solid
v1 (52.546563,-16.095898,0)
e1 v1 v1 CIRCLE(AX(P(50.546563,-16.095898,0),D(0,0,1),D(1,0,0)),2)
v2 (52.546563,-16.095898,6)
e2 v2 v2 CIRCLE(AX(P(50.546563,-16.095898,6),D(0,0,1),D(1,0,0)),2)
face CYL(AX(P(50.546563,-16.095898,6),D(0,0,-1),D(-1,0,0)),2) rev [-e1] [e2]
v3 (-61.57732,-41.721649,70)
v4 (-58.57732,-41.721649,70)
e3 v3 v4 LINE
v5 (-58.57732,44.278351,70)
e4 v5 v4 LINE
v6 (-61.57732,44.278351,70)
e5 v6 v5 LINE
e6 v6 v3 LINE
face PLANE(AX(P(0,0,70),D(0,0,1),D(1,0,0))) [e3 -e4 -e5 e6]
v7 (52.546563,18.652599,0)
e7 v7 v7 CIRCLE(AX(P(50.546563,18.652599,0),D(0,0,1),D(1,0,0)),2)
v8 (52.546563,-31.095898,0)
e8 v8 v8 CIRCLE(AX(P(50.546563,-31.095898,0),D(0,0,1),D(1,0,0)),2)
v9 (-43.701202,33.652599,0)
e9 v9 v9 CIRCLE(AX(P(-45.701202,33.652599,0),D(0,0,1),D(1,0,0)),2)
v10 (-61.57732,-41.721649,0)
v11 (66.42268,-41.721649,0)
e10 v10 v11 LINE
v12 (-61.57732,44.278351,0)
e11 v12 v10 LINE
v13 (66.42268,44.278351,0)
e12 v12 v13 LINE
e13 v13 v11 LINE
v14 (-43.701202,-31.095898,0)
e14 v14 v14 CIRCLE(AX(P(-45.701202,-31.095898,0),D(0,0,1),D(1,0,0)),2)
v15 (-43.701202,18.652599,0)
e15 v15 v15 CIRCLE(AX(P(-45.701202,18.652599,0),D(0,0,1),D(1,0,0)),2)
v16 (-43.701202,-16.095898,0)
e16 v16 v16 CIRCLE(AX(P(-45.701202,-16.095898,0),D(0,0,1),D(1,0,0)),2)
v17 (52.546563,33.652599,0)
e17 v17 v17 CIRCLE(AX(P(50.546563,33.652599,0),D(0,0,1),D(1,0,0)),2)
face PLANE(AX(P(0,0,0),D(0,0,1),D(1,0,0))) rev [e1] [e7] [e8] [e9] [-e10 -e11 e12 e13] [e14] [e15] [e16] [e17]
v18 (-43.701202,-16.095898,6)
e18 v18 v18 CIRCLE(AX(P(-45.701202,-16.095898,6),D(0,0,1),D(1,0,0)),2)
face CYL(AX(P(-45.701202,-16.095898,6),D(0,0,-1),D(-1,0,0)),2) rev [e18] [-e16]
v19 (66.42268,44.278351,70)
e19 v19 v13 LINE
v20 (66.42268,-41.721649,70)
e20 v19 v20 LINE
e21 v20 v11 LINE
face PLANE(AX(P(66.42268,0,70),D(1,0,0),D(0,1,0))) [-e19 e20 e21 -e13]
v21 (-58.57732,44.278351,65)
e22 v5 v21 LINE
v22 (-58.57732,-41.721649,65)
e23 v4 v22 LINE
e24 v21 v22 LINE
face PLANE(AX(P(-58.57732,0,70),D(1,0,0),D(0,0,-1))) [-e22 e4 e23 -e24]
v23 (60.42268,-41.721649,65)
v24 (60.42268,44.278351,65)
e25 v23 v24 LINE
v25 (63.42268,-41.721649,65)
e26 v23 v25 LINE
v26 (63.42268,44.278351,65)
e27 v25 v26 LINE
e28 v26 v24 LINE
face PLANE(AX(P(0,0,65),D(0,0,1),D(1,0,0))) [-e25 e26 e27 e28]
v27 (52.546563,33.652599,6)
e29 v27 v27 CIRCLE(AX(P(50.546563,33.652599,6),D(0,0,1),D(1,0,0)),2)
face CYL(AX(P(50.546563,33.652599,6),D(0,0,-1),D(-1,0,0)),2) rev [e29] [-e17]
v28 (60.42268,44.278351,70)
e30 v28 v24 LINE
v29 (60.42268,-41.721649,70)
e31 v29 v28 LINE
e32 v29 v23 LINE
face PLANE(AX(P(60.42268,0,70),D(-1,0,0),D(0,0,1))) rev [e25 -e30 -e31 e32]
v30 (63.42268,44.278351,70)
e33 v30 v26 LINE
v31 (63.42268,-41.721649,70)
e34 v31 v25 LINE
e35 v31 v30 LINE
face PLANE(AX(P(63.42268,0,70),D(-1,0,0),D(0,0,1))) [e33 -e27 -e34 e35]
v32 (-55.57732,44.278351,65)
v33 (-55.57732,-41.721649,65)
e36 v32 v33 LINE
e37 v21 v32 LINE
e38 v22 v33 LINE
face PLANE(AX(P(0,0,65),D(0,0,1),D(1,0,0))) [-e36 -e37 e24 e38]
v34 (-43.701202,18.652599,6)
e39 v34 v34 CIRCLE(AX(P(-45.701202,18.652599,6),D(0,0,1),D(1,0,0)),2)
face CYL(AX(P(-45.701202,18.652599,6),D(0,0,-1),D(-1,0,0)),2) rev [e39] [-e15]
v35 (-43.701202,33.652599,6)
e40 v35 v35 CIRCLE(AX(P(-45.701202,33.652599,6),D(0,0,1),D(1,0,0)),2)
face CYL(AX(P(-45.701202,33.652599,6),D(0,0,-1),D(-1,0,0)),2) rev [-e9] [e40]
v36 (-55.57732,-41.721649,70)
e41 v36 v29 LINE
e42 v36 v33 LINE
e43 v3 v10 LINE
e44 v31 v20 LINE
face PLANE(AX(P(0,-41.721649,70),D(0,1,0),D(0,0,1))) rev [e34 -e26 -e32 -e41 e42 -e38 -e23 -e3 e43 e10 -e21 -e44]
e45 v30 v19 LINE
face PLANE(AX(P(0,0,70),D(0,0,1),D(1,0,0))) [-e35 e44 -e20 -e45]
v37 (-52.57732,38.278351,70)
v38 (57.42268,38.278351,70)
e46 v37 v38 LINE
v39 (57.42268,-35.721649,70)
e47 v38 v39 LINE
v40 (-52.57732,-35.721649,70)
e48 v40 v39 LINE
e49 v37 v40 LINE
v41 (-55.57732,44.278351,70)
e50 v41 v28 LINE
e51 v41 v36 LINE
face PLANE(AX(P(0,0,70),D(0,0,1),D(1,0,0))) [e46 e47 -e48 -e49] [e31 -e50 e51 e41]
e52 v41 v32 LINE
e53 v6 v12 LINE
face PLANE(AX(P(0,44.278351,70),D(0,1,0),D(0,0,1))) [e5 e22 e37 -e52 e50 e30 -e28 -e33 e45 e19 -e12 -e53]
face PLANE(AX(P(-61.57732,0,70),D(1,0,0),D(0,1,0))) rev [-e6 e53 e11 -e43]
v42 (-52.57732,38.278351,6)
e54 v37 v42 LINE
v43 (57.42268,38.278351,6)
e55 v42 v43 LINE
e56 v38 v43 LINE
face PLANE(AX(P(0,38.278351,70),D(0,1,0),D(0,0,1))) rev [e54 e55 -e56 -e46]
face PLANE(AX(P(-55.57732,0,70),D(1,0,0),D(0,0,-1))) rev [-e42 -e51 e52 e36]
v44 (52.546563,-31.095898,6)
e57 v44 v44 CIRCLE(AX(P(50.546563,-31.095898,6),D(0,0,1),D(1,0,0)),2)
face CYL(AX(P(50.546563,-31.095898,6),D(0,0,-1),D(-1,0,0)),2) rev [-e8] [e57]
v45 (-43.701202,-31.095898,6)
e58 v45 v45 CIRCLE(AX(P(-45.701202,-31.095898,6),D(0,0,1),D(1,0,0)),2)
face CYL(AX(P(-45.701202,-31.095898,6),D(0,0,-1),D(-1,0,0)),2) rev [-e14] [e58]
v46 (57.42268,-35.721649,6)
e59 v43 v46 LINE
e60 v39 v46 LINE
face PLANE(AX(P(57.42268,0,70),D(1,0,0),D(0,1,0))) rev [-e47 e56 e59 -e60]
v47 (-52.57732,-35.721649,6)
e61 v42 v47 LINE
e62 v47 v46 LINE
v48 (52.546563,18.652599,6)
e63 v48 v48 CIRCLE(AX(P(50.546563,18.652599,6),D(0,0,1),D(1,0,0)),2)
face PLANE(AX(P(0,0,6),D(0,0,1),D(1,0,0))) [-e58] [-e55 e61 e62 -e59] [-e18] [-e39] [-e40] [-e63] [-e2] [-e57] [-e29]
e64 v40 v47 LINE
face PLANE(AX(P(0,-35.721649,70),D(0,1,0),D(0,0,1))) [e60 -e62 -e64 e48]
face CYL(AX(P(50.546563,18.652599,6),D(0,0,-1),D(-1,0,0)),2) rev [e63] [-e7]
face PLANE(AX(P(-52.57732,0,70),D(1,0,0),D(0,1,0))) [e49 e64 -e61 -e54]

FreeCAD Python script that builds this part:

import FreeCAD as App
import Part
import Sketcher
Q = App.Units.Quantity

doc = App.newDocument("Part")
body = doc.addObject("PartDesign::Body", "Body")

# Sketch on XY plane
sketch1 = body.newObject("Sketcher::SketchObject", "Sketch")
sketch1.AttachmentSupport = (doc.getObject("XY_Plane"), [""])
sketch1.MapMode = "FlatFace"
sketch1.addGeometry(Part.LineSegment(App.Vector(60, 44, 0), App.Vector(-56, 44, 0)), False)
sketch1.addGeometry(Part.LineSegment(App.Vector(-56, 44, 0), App.Vector(-56, -42, 0)), False)
sketch1.addGeometry(Part.LineSegment(App.Vector(-56, -42, 0), App.Vector(60, -42, 0)), False)
sketch1.addGeometry(Part.LineSegment(App.Vector(60, -42, 0), App.Vector(60, 44, 0)), False)
sketch1.addGeometry(Part.LineSegment(App.Vector(57, -36, 0), App.Vector(-53, -36, 0)), False)
sketch1.addGeometry(Part.LineSegment(App.Vector(-53, -36, 0), App.Vector(-53, 38, 0)), False)
sketch1.addGeometry(Part.LineSegment(App.Vector(-53, 38, 0), App.Vector(57, 38, 0)), False)
sketch1.addGeometry(Part.LineSegment(App.Vector(57, 38, 0), App.Vector(57, -36, 0)), False)
sketch1.addConstraint(Sketcher.Constraint("Coincident", 0, 2, 1, 1))
sketch1.addConstraint(Sketcher.Constraint("Coincident", 1, 2, 2, 1))
sketch1.addConstraint(Sketcher.Constraint("Coincident", 2, 2, 3, 1))
sketch1.addConstraint(Sketcher.Constraint("Coincident", 3, 2, 0, 1))
sketch1.addConstraint(Sketcher.Constraint("Coincident", 4, 2, 5, 1))
sketch1.addConstraint(Sketcher.Constraint("Coincident", 5, 2, 6, 1))
sketch1.addConstraint(Sketcher.Constraint("Coincident", 6, 2, 7, 1))
sketch1.addConstraint(Sketcher.Constraint("Coincident", 7, 2, 4, 1))
sketch1.addConstraint(Sketcher.Constraint("Horizontal", 0))
sketch1.addConstraint(Sketcher.Constraint("Vertical", 1))
sketch1.addConstraint(Sketcher.Constraint("Horizontal", 2))
sketch1.addConstraint(Sketcher.Constraint("Vertical", 3))
sketch1.addConstraint(Sketcher.Constraint("Horizontal", 4))
sketch1.addConstraint(Sketcher.Constraint("Vertical", 5))
sketch1.addConstraint(Sketcher.Constraint("Horizontal", 6))
sketch1.addConstraint(Sketcher.Constraint("Vertical", 7))
sketch1.addConstraint(Sketcher.Constraint("DistanceX", 0, 2, 0, 1, Q("116 mm")))
sketch1.addConstraint(Sketcher.Constraint("DistanceX", 4, 2, 4, 1, Q("110 mm")))
sketch1.addConstraint(Sketcher.Constraint("DistanceY", 1, 2, 1, 1, Q("86 mm")))
sketch1.addConstraint(Sketcher.Constraint("DistanceY", 5, 1, 5, 2, Q("74 mm")))
sketch1.addConstraint(Sketcher.Constraint("DistanceX", 1, 2, 4, 2, Q("3 mm")))
sketch1.addConstraint(Sketcher.Constraint("DistanceY", 1, 2, 4, 2, Q("6 mm")))
sketch1.addConstraint(Sketcher.Constraint("DistanceX", 0, 2, -1, 1, Q("55.57732 mm")))
sketch1.addConstraint(Sketcher.Constraint("DistanceY", -1, 1, 0, 2, Q("44.278351 mm")))
pad1 = body.newObject("PartDesign::Pad", "Pad")
pad1.Profile = sketch1
pad1.Length = 70
body2 = doc.addObject("PartDesign::Body", "Body001")

# Sketch on XY plane
sketch2 = body2.newObject("Sketcher::SketchObject", "Sketch001")
sketch2.AttachmentSupport = (doc.getObject("XY_Plane001"), [""])
sketch2.MapMode = "FlatFace"
sketch2.addGeometry(Part.LineSegment(App.Vector(66.4, 44.3, 0), App.Vector(63.4, 44.3, 0)), False)
sketch2.addGeometry(Part.LineSegment(App.Vector(63.4, 44.3, 0), App.Vector(63.4, -41.7, 0)), False)
sketch2.addGeometry(Part.LineSegment(App.Vector(63.4, -41.7, 0), App.Vector(66.4, -41.7, 0)), False)
sketch2.addGeometry(Part.LineSegment(App.Vector(66.4, -41.7, 0), App.Vector(66.4, 44.3, 0)), False)
sketch2.addConstraint(Sketcher.Constraint("Coincident", 0, 2, 1, 1))
sketch2.addConstraint(Sketcher.Constraint("Coincident", 1, 2, 2, 1))
sketch2.addConstraint(Sketcher.Constraint("Coincident", 2, 2, 3, 1))
sketch2.addConstraint(Sketcher.Constraint("Coincident", 3, 2, 0, 1))
sketch2.addConstraint(Sketcher.Constraint("Horizontal", 0))
sketch2.addConstraint(Sketcher.Constraint("Vertical", 1))
sketch2.addConstraint(Sketcher.Constraint("Horizontal", 2))
sketch2.addConstraint(Sketcher.Constraint("Vertical", 3))
sketch2.addConstraint(Sketcher.Constraint("DistanceX", 0, 2, 0, 1, Q("3 mm")))
sketch2.addConstraint(Sketcher.Constraint("DistanceY", 1, 2, 1, 1, Q("86 mm")))
sketch2.addConstraint(Sketcher.Constraint("DistanceX", -1, 1, 0, 2, Q("63.42268 mm")))
sketch2.addConstraint(Sketcher.Constraint("DistanceY", -1, 1, 0, 2, Q("44.278351 mm")))
pad2 = body2.newObject("PartDesign::Pad", "Pad001")
pad2.Profile = sketch2
pad2.Length = 70
body3 = doc.addObject("PartDesign::Body", "Body002")

# Sketch on XY plane
sketch3 = body3.newObject("Sketcher::SketchObject", "Sketch002")
sketch3.AttachmentSupport = (doc.getObject("XY_Plane002"), [""])
sketch3.MapMode = "FlatFace"
sketch3.addGeometry(Part.LineSegment(App.Vector(-58.6, 44.3, 0), App.Vector(-61.6, 44.3, 0)), False)
sketch3.addGeometry(Part.LineSegment(App.Vector(-61.6, 44.3, 0), App.Vector(-61.6, -41.7, 0)), False)
sketch3.addGeometry(Part.LineSegment(App.Vector(-61.6, -41.7, 0), App.Vector(-58.6, -41.7, 0)), False)
sketch3.addGeometry(Part.LineSegment(App.Vector(-58.6, -41.7, 0), App.Vector(-58.6, 44.3, 0)), False)
sketch3.addConstraint(Sketcher.Constraint("Coincident", 0, 2, 1, 1))
sketch3.addConstraint(Sketcher.Constraint("Coincident", 1, 2, 2, 1))
sketch3.addConstraint(Sketcher.Constraint("Coincident", 2, 2, 3, 1))
sketch3.addConstraint(Sketcher.Constraint("Coincident", 3, 2, 0, 1))
sketch3.addConstraint(Sketcher.Constraint("Horizontal", 0))
sketch3.addConstraint(Sketcher.Constraint("Vertical", 1))
sketch3.addConstraint(Sketcher.Constraint("Horizontal", 2))
sketch3.addConstraint(Sketcher.Constraint("Vertical", 3))
sketch3.addConstraint(Sketcher.Constraint("DistanceX", 0, 2, 0, 1, Q("3 mm")))
sketch3.addConstraint(Sketcher.Constraint("DistanceY", 1, 2, 1, 1, Q("86 mm")))
sketch3.addConstraint(Sketcher.Constraint("DistanceX", 0, 2, -1, 1, Q("61.57732 mm")))
sketch3.addConstraint(Sketcher.Constraint("DistanceY", -1, 1, 0, 2, Q("44.278351 mm")))
pad3 = body3.newObject("PartDesign::Pad", "Pad002")
pad3.Profile = sketch3
pad3.Length = 70
body.AllowCompound = True
doc.recompute()

boolean = body.newObject("PartDesign::Boolean", "Boolean")
boolean.Type = "Fuse"
boolean.addObjects([body2])
doc.recompute()

boolean2 = body.newObject("PartDesign::Boolean", "Boolean001")
boolean2.Type = "Fuse"
boolean2.addObjects([body3])

# Sketch on XY plane
sketch4 = body.newObject("Sketcher::SketchObject", "Sketch003")
sketch4.AttachmentSupport = (doc.getObject("XY_Plane"), [""])
sketch4.MapMode = "FlatFace"
sketch4.addGeometry(Part.LineSegment(App.Vector(-58.6, 44.3, 0), App.Vector(-58.6, -41.7, 0)), False)
sketch4.addGeometry(Part.LineSegment(App.Vector(-58.6, -41.7, 0), App.Vector(-55.6, -41.7, 0)), False)
sketch4.addGeometry(Part.LineSegment(App.Vector(-55.6, -41.7, 0), App.Vector(-55.6, 44.3, 0)), False)
sketch4.addGeometry(Part.LineSegment(App.Vector(-55.6, 44.3, 0), App.Vector(-58.6, 44.3, 0)), False)
sketch4.addGeometry(Part.LineSegment(App.Vector(60.4, -41.7, 0), App.Vector(63.4, -41.7, 0)), False)
sketch4.addGeometry(Part.LineSegment(App.Vector(63.4, -41.7, 0), App.Vector(63.4, 44.3, 0)), False)
sketch4.addGeometry(Part.LineSegment(App.Vector(63.4, 44.3, 0), App.Vector(60.4, 44.3, 0)), False)
sketch4.addGeometry(Part.LineSegment(App.Vector(60.4, 44.3, 0), App.Vector(60.4, -41.7, 0)), False)
sketch4.addConstraint(Sketcher.Constraint("Coincident", 0, 2, 1, 1))
sketch4.addConstraint(Sketcher.Constraint("Coincident", 1, 2, 2, 1))
sketch4.addConstraint(Sketcher.Constraint("Coincident", 2, 2, 3, 1))
sketch4.addConstraint(Sketcher.Constraint("Coincident", 3, 2, 0, 1))
sketch4.addConstraint(Sketcher.Constraint("Coincident", 4, 2, 5, 1))
sketch4.addConstraint(Sketcher.Constraint("Coincident", 5, 2, 6, 1))
sketch4.addConstraint(Sketcher.Constraint("Coincident", 6, 2, 7, 1))
sketch4.addConstraint(Sketcher.Constraint("Coincident", 7, 2, 4, 1))
sketch4.addConstraint(Sketcher.Constraint("Vertical", 0))
sketch4.addConstraint(Sketcher.Constraint("Horizontal", 1))
sketch4.addConstraint(Sketcher.Constraint("Vertical", 2))
sketch4.addConstraint(Sketcher.Constraint("Horizontal", 3))
sketch4.addConstraint(Sketcher.Constraint("Horizontal", 4))
sketch4.addConstraint(Sketcher.Constraint("Vertical", 5))
sketch4.addConstraint(Sketcher.Constraint("Horizontal", 6))
sketch4.addConstraint(Sketcher.Constraint("Vertical", 7))
sketch4.addConstraint(Sketcher.Constraint("Horizontal", 1, 2, 4, 2))
sketch4.addConstraint(Sketcher.Constraint("Horizontal", 3, 2, 5, 2))
sketch4.addConstraint(Sketcher.Constraint("Equal", 3, 4))
sketch4.addConstraint(Sketcher.Constraint("DistanceX", 1, 1, 1, 2, Q("3 mm")))
sketch4.addConstraint(Sketcher.Constraint("DistanceY", 0, 2, 0, 1, Q("86 mm")))
sketch4.addConstraint(Sketcher.Constraint("DistanceX", 1, 2, 4, 2, Q("119 mm")))
sketch4.addConstraint(Sketcher.Constraint("DistanceX", 0, 2, -1, 1, Q("58.57732 mm")))
sketch4.addConstraint(Sketcher.Constraint("DistanceY", 0, 2, -1, 1, Q("41.721649 mm")))
pad4 = body.newObject("PartDesign::Pad", "Pad003")
pad4.Profile = sketch4
pad4.Length = 65

# Sketch on XY plane
sketch5 = body.newObject("Sketcher::SketchObject", "Sketch004")
sketch5.AttachmentSupport = (doc.getObject("XY_Plane"), [""])
sketch5.MapMode = "FlatFace"
sketch5.addGeometry(Part.LineSegment(App.Vector(-52.6, 38.3, 0), App.Vector(-52.6, -35.7, 0)), False)
sketch5.addGeometry(Part.LineSegment(App.Vector(-52.6, -35.7, 0), App.Vector(57.4, -35.7, 0)), False)
sketch5.addGeometry(Part.LineSegment(App.Vector(57.4, -35.7, 0), App.Vector(57.4, 38.3, 0)), False)
sketch5.addGeometry(Part.LineSegment(App.Vector(57.4, 38.3, 0), App.Vector(-52.6, 38.3, 0)), False)
sketch5.addGeometry(Part.Circle(App.Vector(-45.7, -31.1, 0), App.Vector(0, 0, 1), 2), False)
sketch5.addGeometry(Part.Circle(App.Vector(-45.7, -16.1, 0), App.Vector(0, 0, 1), 2), False)
sketch5.addGeometry(Part.Circle(App.Vector(50.5, -31.1, 0), App.Vector(0, 0, 1), 2), False)
sketch5.addGeometry(Part.Circle(App.Vector(50.5, -16.1, 0), App.Vector(0, 0, 1), 2), False)
sketch5.addGeometry(Part.Circle(App.Vector(-45.7, 18.7, 0), App.Vector(0, 0, 1), 2), False)
sketch5.addGeometry(Part.Circle(App.Vector(-45.7, 33.7, 0), App.Vector(0, 0, 1), 2), False)
sketch5.addGeometry(Part.Circle(App.Vector(50.5, 18.7, 0), App.Vector(0, 0, 1), 2), False)
sketch5.addGeometry(Part.Circle(App.Vector(50.5, 33.7, 0), App.Vector(0, 0, 1), 2), False)
sketch5.addConstraint(Sketcher.Constraint("Coincident", 0, 2, 1, 1))
sketch5.addConstraint(Sketcher.Constraint("Coincident", 1, 2, 2, 1))
sketch5.addConstraint(Sketcher.Constraint("Coincident", 2, 2, 3, 1))
sketch5.addConstraint(Sketcher.Constraint("Coincident", 3, 2, 0, 1))
sketch5.addConstraint(Sketcher.Constraint("Vertical", 0))
sketch5.addConstraint(Sketcher.Constraint("Horizontal", 1))
sketch5.addConstraint(Sketcher.Constraint("Vertical", 2))
sketch5.addConstraint(Sketcher.Constraint("Horizontal", 3))
sketch5.addConstraint(Sketcher.Constraint("Equal", 4, 5))
sketch5.addConstraint(Sketcher.Constraint("Equal", 5, 6))
sketch5.addConstraint(Sketcher.Constraint("Equal", 6, 7))
sketch5.addConstraint(Sketcher.Constraint("Equal", 7, 8))
sketch5.addConstraint(Sketcher.Constraint("Equal", 8, 9))
sketch5.addConstraint(Sketcher.Constraint("Equal", 9, 10))
sketch5.addConstraint(Sketcher.Constraint("Equal", 10, 11))
sketch5.addConstraint(Sketcher.Constraint("Horizontal", 4, 3, 6, 3))
sketch5.addConstraint(Sketcher.Constraint("Horizontal", 5, 3, 7, 3))
sketch5.addConstraint(Sketcher.Constraint("Horizontal", 8, 3, 10, 3))
sketch5.addConstraint(Sketcher.Constraint("Horizontal", 9, 3, 11, 3))
sketch5.addConstraint(Sketcher.Constraint("Vertical", 4, 3, 5, 3))
sketch5.addConstraint(Sketcher.Constraint("Vertical", 6, 3, 7, 3))
sketch5.addConstraint(Sketcher.Constraint("Vertical", 5, 3, 8, 3))
sketch5.addConstraint(Sketcher.Constraint("Vertical", 8, 3, 9, 3))
sketch5.addConstraint(Sketcher.Constraint("Vertical", 7, 3, 10, 3))
sketch5.addConstraint(Sketcher.Constraint("Vertical", 10, 3, 11, 3))
sketch5.addConstraint(Sketcher.Constraint("Diameter", 4, Q("4 mm")))
sketch5.addConstraint(Sketcher.Constraint("DistanceX", 1, 1, 1, 2, Q("110 mm")))
sketch5.addConstraint(Sketcher.Constraint("DistanceY", 0, 2, 0, 1, Q("74 mm")))
sketch5.addConstraint(Sketcher.Constraint("DistanceY", 4, 3, 5, 3, Q("15 mm")))
sketch5.addConstraint(Sketcher.Constraint("DistanceY", 8, 3, 9, 3, Q("15 mm")))
sketch5.addConstraint(Sketcher.Constraint("DistanceX", 4, 3, -1, 1, Q("45.701202 mm")))
sketch5.addConstraint(Sketcher.Constraint("DistanceY", -1, 1, 8, 3, Q("18.652599 mm")))
sketch5.addConstraint(Sketcher.Constraint("DistanceX", 0, 2, -1, 1, Q("52.57732 mm")))
sketch5.addConstraint(Sketcher.Constraint("DistanceY", 0, 2, -1, 1, Q("35.721649 mm")))
sketch5.addConstraint(Sketcher.Constraint("DistanceY", 0, 2, 4, 3, Q("4.625752 mm")))
sketch5.addConstraint(Sketcher.Constraint("DistanceX", -1, 1, 6, 3, Q("50.546563 mm")))
pad5 = body.newObject("PartDesign::Pad", "Pad004")
pad5.Profile = sketch5
pad5.Length = 6

doc.recompute()
